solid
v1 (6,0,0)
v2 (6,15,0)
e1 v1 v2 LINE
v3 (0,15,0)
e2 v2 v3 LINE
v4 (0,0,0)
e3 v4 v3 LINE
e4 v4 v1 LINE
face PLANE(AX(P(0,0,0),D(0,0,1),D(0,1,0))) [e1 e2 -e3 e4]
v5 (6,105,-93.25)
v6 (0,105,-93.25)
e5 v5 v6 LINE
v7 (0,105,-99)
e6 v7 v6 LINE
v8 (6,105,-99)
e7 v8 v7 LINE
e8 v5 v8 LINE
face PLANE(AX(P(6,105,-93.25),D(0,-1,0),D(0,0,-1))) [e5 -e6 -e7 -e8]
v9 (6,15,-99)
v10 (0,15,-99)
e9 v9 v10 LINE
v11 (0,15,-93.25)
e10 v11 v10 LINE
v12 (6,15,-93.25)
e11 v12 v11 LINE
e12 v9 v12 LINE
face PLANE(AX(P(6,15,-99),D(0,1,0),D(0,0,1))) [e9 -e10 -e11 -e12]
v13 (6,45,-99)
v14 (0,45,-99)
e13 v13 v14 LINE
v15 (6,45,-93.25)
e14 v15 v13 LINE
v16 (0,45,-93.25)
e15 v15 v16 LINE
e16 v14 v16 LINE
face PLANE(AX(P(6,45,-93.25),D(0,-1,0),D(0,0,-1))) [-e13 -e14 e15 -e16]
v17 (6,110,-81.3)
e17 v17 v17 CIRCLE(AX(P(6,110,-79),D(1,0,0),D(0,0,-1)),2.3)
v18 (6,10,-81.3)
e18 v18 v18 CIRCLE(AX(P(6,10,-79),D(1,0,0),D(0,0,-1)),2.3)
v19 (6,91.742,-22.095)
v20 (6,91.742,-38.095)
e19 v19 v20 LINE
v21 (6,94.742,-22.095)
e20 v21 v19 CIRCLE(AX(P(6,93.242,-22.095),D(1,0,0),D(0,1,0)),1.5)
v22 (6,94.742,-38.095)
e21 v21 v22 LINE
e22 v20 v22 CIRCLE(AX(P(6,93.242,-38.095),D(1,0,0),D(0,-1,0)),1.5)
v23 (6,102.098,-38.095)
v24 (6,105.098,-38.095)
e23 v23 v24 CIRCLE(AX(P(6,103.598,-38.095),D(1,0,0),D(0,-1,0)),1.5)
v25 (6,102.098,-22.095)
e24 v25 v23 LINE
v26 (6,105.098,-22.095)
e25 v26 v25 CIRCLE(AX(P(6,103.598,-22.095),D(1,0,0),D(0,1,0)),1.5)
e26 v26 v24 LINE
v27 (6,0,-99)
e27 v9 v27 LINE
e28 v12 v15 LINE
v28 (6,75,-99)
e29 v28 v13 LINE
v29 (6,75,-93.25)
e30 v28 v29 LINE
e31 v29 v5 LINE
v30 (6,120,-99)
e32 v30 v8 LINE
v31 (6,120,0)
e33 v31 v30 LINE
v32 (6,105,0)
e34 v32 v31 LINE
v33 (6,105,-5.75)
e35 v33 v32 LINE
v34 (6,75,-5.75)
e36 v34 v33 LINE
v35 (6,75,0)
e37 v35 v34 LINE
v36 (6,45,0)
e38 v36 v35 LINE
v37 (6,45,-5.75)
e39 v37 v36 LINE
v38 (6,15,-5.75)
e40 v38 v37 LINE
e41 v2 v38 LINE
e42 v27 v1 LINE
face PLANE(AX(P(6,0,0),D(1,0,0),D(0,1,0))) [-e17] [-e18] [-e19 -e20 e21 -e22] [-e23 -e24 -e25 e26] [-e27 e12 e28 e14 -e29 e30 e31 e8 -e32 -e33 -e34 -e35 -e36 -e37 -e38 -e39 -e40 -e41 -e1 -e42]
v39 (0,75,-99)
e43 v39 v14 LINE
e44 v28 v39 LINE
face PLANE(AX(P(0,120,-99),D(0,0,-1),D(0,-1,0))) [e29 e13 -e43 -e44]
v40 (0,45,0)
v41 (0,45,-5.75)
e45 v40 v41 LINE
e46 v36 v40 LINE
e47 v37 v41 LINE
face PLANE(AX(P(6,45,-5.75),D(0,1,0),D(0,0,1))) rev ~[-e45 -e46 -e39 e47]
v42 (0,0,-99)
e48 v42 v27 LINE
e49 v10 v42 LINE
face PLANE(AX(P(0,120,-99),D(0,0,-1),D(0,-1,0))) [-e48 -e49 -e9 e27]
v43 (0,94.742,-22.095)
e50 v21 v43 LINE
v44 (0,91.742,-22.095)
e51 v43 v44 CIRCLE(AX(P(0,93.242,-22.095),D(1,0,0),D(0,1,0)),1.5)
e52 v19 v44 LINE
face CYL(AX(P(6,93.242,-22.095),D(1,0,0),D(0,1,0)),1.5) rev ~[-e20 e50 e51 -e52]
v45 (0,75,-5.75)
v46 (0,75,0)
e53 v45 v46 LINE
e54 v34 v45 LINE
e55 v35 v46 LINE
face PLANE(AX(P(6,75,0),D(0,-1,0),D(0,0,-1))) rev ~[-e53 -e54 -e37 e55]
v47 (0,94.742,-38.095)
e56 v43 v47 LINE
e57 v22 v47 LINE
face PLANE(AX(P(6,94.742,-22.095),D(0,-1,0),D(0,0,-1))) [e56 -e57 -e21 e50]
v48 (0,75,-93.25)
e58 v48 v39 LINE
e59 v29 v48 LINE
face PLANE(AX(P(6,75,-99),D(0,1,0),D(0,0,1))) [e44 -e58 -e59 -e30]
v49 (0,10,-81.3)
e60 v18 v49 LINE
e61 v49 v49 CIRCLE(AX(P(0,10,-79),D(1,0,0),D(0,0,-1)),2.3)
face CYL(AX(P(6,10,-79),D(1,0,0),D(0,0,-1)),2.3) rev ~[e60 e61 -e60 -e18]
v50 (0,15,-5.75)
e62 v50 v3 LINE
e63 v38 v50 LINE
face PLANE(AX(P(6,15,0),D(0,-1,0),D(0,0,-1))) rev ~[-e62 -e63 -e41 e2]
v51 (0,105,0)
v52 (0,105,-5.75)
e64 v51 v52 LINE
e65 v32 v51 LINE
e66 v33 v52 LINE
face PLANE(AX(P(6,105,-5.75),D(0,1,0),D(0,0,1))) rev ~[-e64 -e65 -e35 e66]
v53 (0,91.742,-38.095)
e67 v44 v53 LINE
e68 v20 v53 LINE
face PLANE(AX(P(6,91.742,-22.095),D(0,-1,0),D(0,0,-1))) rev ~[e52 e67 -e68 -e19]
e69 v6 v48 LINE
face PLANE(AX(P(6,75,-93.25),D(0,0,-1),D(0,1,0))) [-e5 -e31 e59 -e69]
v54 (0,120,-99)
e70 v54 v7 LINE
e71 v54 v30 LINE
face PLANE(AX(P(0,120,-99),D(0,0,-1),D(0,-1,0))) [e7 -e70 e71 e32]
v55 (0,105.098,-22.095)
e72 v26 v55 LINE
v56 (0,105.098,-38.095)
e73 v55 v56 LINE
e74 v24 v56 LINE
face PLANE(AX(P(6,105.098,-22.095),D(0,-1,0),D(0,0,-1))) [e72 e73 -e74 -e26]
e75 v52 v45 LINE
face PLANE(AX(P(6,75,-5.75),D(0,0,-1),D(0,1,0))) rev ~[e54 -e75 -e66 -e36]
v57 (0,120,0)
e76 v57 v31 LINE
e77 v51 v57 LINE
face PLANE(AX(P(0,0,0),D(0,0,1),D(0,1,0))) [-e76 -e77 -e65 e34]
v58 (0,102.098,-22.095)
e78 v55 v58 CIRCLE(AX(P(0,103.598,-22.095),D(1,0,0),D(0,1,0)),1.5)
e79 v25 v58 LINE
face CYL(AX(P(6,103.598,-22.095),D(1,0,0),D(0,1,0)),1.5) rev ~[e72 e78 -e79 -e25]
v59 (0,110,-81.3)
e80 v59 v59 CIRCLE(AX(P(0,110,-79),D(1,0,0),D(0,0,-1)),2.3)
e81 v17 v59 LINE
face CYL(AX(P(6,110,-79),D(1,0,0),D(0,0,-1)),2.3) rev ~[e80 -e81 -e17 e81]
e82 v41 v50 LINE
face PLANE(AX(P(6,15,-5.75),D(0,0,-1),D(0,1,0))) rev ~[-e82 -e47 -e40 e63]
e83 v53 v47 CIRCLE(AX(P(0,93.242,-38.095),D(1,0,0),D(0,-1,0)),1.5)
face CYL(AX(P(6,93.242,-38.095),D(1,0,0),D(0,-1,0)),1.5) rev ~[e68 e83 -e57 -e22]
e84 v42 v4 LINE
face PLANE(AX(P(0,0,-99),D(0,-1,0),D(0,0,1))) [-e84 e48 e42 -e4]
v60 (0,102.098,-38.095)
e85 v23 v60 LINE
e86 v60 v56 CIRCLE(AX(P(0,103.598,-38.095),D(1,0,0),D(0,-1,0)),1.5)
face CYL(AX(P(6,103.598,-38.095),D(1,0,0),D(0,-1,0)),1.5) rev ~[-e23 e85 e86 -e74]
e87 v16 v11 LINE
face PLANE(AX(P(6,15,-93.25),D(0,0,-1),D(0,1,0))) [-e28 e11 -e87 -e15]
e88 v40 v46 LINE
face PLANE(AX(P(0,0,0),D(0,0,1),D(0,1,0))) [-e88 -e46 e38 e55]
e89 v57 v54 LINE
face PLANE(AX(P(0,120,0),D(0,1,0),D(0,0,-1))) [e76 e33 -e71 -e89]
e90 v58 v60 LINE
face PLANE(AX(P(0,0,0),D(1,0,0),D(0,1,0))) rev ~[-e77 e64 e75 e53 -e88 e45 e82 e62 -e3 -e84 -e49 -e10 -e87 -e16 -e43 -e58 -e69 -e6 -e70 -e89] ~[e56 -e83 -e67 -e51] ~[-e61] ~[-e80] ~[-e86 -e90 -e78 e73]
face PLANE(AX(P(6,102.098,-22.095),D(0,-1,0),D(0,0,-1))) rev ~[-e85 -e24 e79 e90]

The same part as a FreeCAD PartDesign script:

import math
import FreeCAD as App
import Part
import Sketcher
from FreeCAD import Vector

doc = App.newDocument("Part")
params = doc.addObject("Spreadsheet::Sheet", "Params")
for row, (alias, value) in enumerate([
    ("sketch1_width", "120 mm"),
    ("sketch1_height", "99 mm"),
    ("pad1_length", "6 mm"),
    ("sketch2_width", "30 mm"),
    ("sketch2_height", "5.75 mm"),
    ("sketch3_diameter", "4.6 mm"),
    ("pocket2_length", "6 mm"),
    ("sketch4_radius", "1.5 mm"),
    ("sketch4_height", "16 mm"),
    ("pocket3_length", "10 mm"),
], start=1):
    params.set(f"A{row}", alias)
    params.set(f"B{row}", "=" + value)
    params.setAlias(f"B{row}", alias)

body = doc.addObject("PartDesign::Body", "Body")

# Sketch on YZ plane
sketch1 = body.newObject("Sketcher::SketchObject", "Sketch")
sketch1.AttachmentSupport = (doc.getObject("YZ_Plane"), [""])
sketch1.MapMode = "FlatFace"
sketch1.addGeometry(Part.LineSegment(Vector(120, 0, 0), Vector(0, 0, 0)), False)
sketch1.addGeometry(Part.LineSegment(Vector(0, 0, 0), Vector(0, -99, 0)), False)
sketch1.addGeometry(Part.LineSegment(Vector(0, -99, 0), Vector(120, -99, 0)), False)
sketch1.addGeometry(Part.LineSegment(Vector(120, -99, 0), Vector(120, 0, 0)), False)
sketch1.addConstraint(Sketcher.Constraint("Coincident", 0, 2, 1, 1))
sketch1.addConstraint(Sketcher.Constraint("Coincident", 1, 2, 2, 1))
sketch1.addConstraint(Sketcher.Constraint("Coincident", 2, 2, 3, 1))
sketch1.addConstraint(Sketcher.Constraint("Coincident", 3, 2, 0, 1))
sketch1.addConstraint(Sketcher.Constraint("Horizontal", 0))
sketch1.addConstraint(Sketcher.Constraint("Vertical", 1))
sketch1.addConstraint(Sketcher.Constraint("Horizontal", 2))
sketch1.addConstraint(Sketcher.Constraint("Vertical", 3))
sketch1.addConstraint(Sketcher.Constraint("Coincident", 0, 2, -1, 1))
sketch1.addConstraint(Sketcher.Constraint("DistanceX", 0, 2, 0, 1, 120.0))
sketch1.addConstraint(Sketcher.Constraint("DistanceY", 1, 2, 1, 1, 99.0))
sketch1.setExpression("Constraints[9]", "Params.sketch1_width")
sketch1.setExpression("Constraints[10]", "Params.sketch1_height")
pad1 = body.newObject("PartDesign::Pad", "Pad")
pad1.Profile = sketch1
pad1.setExpression("Length", "Params.pad1_length")

# Sketch on YZ plane
sketch2 = body.newObject("Sketcher::SketchObject", "Sketch001")
sketch2.AttachmentSupport = (doc.getObject("YZ_Plane"), [""])
sketch2.MapMode = "FlatFace"
sketch2.AttachmentOffset = App.Placement(Vector(0, 0, 6), App.Rotation())
sketch2.addGeometry(Part.LineSegment(Vector(105, -5.75, 0), Vector(105, 0, 0)), False)
sketch2.addGeometry(Part.LineSegment(Vector(105, 0, 0), Vector(75, 0, 0)), False)
sketch2.addGeometry(Part.LineSegment(Vector(75, 0, 0), Vector(75, -5.75, 0)), False)
sketch2.addGeometry(Part.LineSegment(Vector(75, -5.75, 0), Vector(105, -5.75, 0)), False)
sketch2.addGeometry(Part.LineSegment(Vector(75, -99, 0), Vector(105, -99, 0)), False)
sketch2.addGeometry(Part.LineSegment(Vector(105, -99, 0), Vector(105, -93.25, 0)), False)
sketch2.addGeometry(Part.LineSegment(Vector(105, -93.25, 0), Vector(75, -93.25, 0)), False)
sketch2.addGeometry(Part.LineSegment(Vector(75, -93.25, 0), Vector(75, -99, 0)), False)
sketch2.addGeometry(Part.LineSegment(Vector(45, -5.75, 0), Vector(45, 0, 0)), False)
sketch2.addGeometry(Part.LineSegment(Vector(45, 0, 0), Vector(15, 0, 0)), False)
sketch2.addGeometry(Part.LineSegment(Vector(15, 0, 0), Vector(15, -5.75, 0)), False)
sketch2.addGeometry(Part.LineSegment(Vector(15, -5.75, 0), Vector(45, -5.75, 0)), False)
sketch2.addGeometry(Part.LineSegment(Vector(15, -99, 0), Vector(45, -99, 0)), False)
sketch2.addGeometry(Part.LineSegment(Vector(45, -99, 0), Vector(45, -93.25, 0)), False)
sketch2.addGeometry(Part.LineSegment(Vector(45, -93.25, 0), Vector(15, -93.25, 0)), False)
sketch2.addGeometry(Part.LineSegment(Vector(15, -93.25, 0), Vector(15, -99, 0)), False)
sketch2.addConstraint(Sketcher.Constraint("Coincident", 0, 2, 1, 1))
sketch2.addConstraint(Sketcher.Constraint("Coincident", 1, 2, 2, 1))
sketch2.addConstraint(Sketcher.Constraint("Coincident", 2, 2, 3, 1))
sketch2.addConstraint(Sketcher.Constraint("Coincident", 3, 2, 0, 1))
sketch2.addConstraint(Sketcher.Constraint("Coincident", 4, 2, 5, 1))
sketch2.addConstraint(Sketcher.Constraint("Coincident", 5, 2, 6, 1))
sketch2.addConstraint(Sketcher.Constraint("Coincident", 6, 2, 7, 1))
sketch2.addConstraint(Sketcher.Constraint("Coincident", 7, 2, 4, 1))
sketch2.addConstraint(Sketcher.Constraint("Coincident", 8, 2, 9, 1))
sketch2.addConstraint(Sketcher.Constraint("Coincident", 9, 2, 10, 1))
sketch2.addConstraint(Sketcher.Constraint("Coincident", 10, 2, 11, 1))
sketch2.addConstraint(Sketcher.Constraint("Coincident", 11, 2, 8, 1))
sketch2.addConstraint(Sketcher.Constraint("Coincident", 12, 2, 13, 1))
sketch2.addConstraint(Sketcher.Constraint("Coincident", 13, 2, 14, 1))
sketch2.addConstraint(Sketcher.Constraint("Coincident", 14, 2, 15, 1))
sketch2.addConstraint(Sketcher.Constraint("Coincident", 15, 2, 12, 1))
sketch2.addConstraint(Sketcher.Constraint("Vertical", 0))
sketch2.addConstraint(Sketcher.Constraint("Horizontal", 1))
sketch2.addConstraint(Sketcher.Constraint("Vertical", 2))
sketch2.addConstraint(Sketcher.Constraint("Horizontal", 3))
sketch2.addConstraint(Sketcher.Constraint("Horizontal", 4))
sketch2.addConstraint(Sketcher.Constraint("Vertical", 5))
sketch2.addConstraint(Sketcher.Constraint("Horizontal", 6))
sketch2.addConstraint(Sketcher.Constraint("Vertical", 7))
sketch2.addConstraint(Sketcher.Constraint("Vertical", 8))
sketch2.addConstraint(Sketcher.Constraint("Horizontal", 9))
sketch2.addConstraint(Sketcher.Constraint("Vertical", 10))
sketch2.addConstraint(Sketcher.Constraint("Horizontal", 11))
sketch2.addConstraint(Sketcher.Constraint("Horizontal", 12))
sketch2.addConstraint(Sketcher.Constraint("Vertical", 13))
sketch2.addConstraint(Sketcher.Constraint("Horizontal", 14))
sketch2.addConstraint(Sketcher.Constraint("Vertical", 15))
sketch2.addConstraint(Sketcher.Constraint("PointOnObject", 0, 2, -1))
sketch2.addConstraint(Sketcher.Constraint("PointOnObject", 8, 2, -1))
sketch2.addConstraint(Sketcher.Constraint("Horizontal", 3, 2, 10, 2))
sketch2.addConstraint(Sketcher.Constraint("Horizontal", 7, 2, 12, 2))
sketch2.addConstraint(Sketcher.Constraint("Horizontal", 6, 2, 13, 2))
sketch2.addConstraint(Sketcher.Constraint("Vertical", 3, 2, 4, 2))
sketch2.addConstraint(Sketcher.Constraint("Vertical", 2, 2, 6, 2))
sketch2.addConstraint(Sketcher.Constraint("Vertical", 11, 2, 12, 2))
sketch2.addConstraint(Sketcher.Constraint("Vertical", 10, 2, 14, 2))
sketch2.addConstraint(Sketcher.Constraint("Equal", 6, 9))
sketch2.addConstraint(Sketcher.Constraint("Equal", 2, 5))
sketch2.addConstraint(Sketcher.Constraint("DistanceX", 1, 2, 1, 1, 30.0))
sketch2.addConstraint(Sketcher.Constraint("DistanceX", -1, 1, 9, 2, 15.0))
sketch2.addConstraint(Sketcher.Constraint("DistanceX", 8, 2, 1, 2, 30.0))
sketch2.addConstraint(Sketcher.Constraint("DistanceY", 0, 1, 0, 2, 5.75))
sketch2.addConstraint(Sketcher.Constraint("DistanceY", 4, 2, -1, 1, 99.0))
sketch2.setExpression("Constraints[43]", "Params.sketch2_width")
sketch2.setExpression("Constraints[46]", "Params.sketch2_height")
pocket1 = body.newObject("PartDesign::Pocket", "Pocket")
pocket1.Profile = sketch2
pocket1.Type = "UpToFirst"

# Sketch on YZ plane
sketch3 = body.newObject("Sketcher::SketchObject", "Sketch002")
sketch3.AttachmentSupport = (doc.getObject("YZ_Plane"), [""])
sketch3.MapMode = "FlatFace"
sketch3.AttachmentOffset = App.Placement(Vector(0, 0, 6), App.Rotation())
sketch3.addGeometry(Part.Circle(Vector(10, -79, 0), Vector(0, 0, 1), 2.3), False)
sketch3.addGeometry(Part.Circle(Vector(110, -79, 0), Vector(0, 0, 1), 2.3), False)
sketch3.addConstraint(Sketcher.Constraint("Equal", 0, 1))
sketch3.addConstraint(Sketcher.Constraint("Horizontal", 0, 3, 1, 3))
sketch3.addConstraint(Sketcher.Constraint("Diameter", 0, 4.6))
sketch3.addConstraint(Sketcher.Constraint("DistanceX", -1, 1, 0, 3, 10.0))
sketch3.addConstraint(Sketcher.Constraint("DistanceY", 0, 3, -1, 1, 79.0))
sketch3.addConstraint(Sketcher.Constraint("DistanceX", -1, 1, 1, 3, 110.0))
sketch3.setExpression("Constraints[2]", "Params.sketch3_diameter")
pocket2 = body.newObject("PartDesign::Pocket", "Pocket001")
pocket2.Profile = sketch3
pocket2.setExpression("Length", "Params.pocket2_length")

# Sketch on YZ plane
sketch4 = body.newObject("Sketcher::SketchObject", "Sketch003")
sketch4.AttachmentSupport = (doc.getObject("YZ_Plane"), [""])
sketch4.MapMode = "FlatFace"
sketch4.AttachmentOffset = App.Placement(Vector(0, 0, 6), App.Rotation())
sketch4.addGeometry(Part.LineSegment(Vector(105.098, -38.095, 0), Vector(105.098, -22.095, 0)), False)
sketch4.addGeometry(Part.ArcOfCircle(Part.Circle(Vector(103.598, -22.095, 0), Vector(0, 0, 1), 1.5), math.radians(0), math.radians(180)), False)
sketch4.addGeometry(Part.LineSegment(Vector(102.098, -22.095, 0), Vector(102.098, -38.095, 0)), False)
sketch4.addGeometry(Part.ArcOfCircle(Part.Circle(Vector(103.598, -38.095, 0), Vector(0, 0, 1), 1.5), math.radians(180), math.radians(360)), False)
sketch4.addGeometry(Part.LineSegment(Vector(94.742, -38.095, 0), Vector(94.742, -22.095, 0)), False)
sketch4.addGeometry(Part.ArcOfCircle(Part.Circle(Vector(93.242, -22.095, 0), Vector(0, 0, 1), 1.5), math.radians(0), math.radians(180)), False)
sketch4.addGeometry(Part.LineSegment(Vector(91.742, -22.095, 0), Vector(91.742, -38.095, 0)), False)
sketch4.addGeometry(Part.ArcOfCircle(Part.Circle(Vector(93.242, -38.095, 0), Vector(0, 0, 1), 1.5), math.radians(180), math.radians(360)), False)
sketch4.addConstraint(Sketcher.Constraint("Tangent", 0, 2, 1, 1))
sketch4.addConstraint(Sketcher.Constraint("Tangent", 1, 2, 2, 1))
sketch4.addConstraint(Sketcher.Constraint("Tangent", 2, 2, 3, 1))
sketch4.addConstraint(Sketcher.Constraint("Tangent", 3, 2, 0, 1))
sketch4.addConstraint(Sketcher.Constraint("Tangent", 4, 2, 5, 1))
sketch4.addConstraint(Sketcher.Constraint("Tangent", 5, 2, 6, 1))
sketch4.addConstraint(Sketcher.Constraint("Tangent", 6, 2, 7, 1))
sketch4.addConstraint(Sketcher.Constraint("Tangent", 7, 2, 4, 1))
sketch4.addConstraint(Sketcher.Constraint("Vertical", 0))
sketch4.addConstraint(Sketcher.Constraint("Vertical", 2))
sketch4.addConstraint(Sketcher.Constraint("Vertical", 4))
sketch4.addConstraint(Sketcher.Constraint("Vertical", 6))
sketch4.addConstraint(Sketcher.Constraint("Equal", 3, 5))
sketch4.addConstraint(Sketcher.Constraint("Horizontal", 1, 3, 5, 3))
sketch4.addConstraint(Sketcher.Constraint("Horizontal", 3, 3, 7, 3))
sketch4.addConstraint(Sketcher.Constraint("Radius", 1, 1.5))
sketch4.addConstraint(Sketcher.Constraint("DistanceY", 0, 1, 0, 2, 16.0))
sketch4.addConstraint(Sketcher.Constraint("DistanceX", 5, 3, 1, 3, 10.356))
sketch4.addConstraint(Sketcher.Constraint("DistanceX", -1, 1, 1, 3, 103.598))
sketch4.addConstraint(Sketcher.Constraint("DistanceY", 1, 3, -1, 1, 22.095))
sketch4.setExpression("Constraints[15]", "Params.sketch4_radius")
sketch4.setExpression("Constraints[16]", "Params.sketch4_height")
pocket3 = body.newObject("PartDesign::Pocket", "Pocket002")
pocket3.Profile = sketch4
pocket3.setExpression("Length", "Params.pocket3_length")

doc.recompute()
